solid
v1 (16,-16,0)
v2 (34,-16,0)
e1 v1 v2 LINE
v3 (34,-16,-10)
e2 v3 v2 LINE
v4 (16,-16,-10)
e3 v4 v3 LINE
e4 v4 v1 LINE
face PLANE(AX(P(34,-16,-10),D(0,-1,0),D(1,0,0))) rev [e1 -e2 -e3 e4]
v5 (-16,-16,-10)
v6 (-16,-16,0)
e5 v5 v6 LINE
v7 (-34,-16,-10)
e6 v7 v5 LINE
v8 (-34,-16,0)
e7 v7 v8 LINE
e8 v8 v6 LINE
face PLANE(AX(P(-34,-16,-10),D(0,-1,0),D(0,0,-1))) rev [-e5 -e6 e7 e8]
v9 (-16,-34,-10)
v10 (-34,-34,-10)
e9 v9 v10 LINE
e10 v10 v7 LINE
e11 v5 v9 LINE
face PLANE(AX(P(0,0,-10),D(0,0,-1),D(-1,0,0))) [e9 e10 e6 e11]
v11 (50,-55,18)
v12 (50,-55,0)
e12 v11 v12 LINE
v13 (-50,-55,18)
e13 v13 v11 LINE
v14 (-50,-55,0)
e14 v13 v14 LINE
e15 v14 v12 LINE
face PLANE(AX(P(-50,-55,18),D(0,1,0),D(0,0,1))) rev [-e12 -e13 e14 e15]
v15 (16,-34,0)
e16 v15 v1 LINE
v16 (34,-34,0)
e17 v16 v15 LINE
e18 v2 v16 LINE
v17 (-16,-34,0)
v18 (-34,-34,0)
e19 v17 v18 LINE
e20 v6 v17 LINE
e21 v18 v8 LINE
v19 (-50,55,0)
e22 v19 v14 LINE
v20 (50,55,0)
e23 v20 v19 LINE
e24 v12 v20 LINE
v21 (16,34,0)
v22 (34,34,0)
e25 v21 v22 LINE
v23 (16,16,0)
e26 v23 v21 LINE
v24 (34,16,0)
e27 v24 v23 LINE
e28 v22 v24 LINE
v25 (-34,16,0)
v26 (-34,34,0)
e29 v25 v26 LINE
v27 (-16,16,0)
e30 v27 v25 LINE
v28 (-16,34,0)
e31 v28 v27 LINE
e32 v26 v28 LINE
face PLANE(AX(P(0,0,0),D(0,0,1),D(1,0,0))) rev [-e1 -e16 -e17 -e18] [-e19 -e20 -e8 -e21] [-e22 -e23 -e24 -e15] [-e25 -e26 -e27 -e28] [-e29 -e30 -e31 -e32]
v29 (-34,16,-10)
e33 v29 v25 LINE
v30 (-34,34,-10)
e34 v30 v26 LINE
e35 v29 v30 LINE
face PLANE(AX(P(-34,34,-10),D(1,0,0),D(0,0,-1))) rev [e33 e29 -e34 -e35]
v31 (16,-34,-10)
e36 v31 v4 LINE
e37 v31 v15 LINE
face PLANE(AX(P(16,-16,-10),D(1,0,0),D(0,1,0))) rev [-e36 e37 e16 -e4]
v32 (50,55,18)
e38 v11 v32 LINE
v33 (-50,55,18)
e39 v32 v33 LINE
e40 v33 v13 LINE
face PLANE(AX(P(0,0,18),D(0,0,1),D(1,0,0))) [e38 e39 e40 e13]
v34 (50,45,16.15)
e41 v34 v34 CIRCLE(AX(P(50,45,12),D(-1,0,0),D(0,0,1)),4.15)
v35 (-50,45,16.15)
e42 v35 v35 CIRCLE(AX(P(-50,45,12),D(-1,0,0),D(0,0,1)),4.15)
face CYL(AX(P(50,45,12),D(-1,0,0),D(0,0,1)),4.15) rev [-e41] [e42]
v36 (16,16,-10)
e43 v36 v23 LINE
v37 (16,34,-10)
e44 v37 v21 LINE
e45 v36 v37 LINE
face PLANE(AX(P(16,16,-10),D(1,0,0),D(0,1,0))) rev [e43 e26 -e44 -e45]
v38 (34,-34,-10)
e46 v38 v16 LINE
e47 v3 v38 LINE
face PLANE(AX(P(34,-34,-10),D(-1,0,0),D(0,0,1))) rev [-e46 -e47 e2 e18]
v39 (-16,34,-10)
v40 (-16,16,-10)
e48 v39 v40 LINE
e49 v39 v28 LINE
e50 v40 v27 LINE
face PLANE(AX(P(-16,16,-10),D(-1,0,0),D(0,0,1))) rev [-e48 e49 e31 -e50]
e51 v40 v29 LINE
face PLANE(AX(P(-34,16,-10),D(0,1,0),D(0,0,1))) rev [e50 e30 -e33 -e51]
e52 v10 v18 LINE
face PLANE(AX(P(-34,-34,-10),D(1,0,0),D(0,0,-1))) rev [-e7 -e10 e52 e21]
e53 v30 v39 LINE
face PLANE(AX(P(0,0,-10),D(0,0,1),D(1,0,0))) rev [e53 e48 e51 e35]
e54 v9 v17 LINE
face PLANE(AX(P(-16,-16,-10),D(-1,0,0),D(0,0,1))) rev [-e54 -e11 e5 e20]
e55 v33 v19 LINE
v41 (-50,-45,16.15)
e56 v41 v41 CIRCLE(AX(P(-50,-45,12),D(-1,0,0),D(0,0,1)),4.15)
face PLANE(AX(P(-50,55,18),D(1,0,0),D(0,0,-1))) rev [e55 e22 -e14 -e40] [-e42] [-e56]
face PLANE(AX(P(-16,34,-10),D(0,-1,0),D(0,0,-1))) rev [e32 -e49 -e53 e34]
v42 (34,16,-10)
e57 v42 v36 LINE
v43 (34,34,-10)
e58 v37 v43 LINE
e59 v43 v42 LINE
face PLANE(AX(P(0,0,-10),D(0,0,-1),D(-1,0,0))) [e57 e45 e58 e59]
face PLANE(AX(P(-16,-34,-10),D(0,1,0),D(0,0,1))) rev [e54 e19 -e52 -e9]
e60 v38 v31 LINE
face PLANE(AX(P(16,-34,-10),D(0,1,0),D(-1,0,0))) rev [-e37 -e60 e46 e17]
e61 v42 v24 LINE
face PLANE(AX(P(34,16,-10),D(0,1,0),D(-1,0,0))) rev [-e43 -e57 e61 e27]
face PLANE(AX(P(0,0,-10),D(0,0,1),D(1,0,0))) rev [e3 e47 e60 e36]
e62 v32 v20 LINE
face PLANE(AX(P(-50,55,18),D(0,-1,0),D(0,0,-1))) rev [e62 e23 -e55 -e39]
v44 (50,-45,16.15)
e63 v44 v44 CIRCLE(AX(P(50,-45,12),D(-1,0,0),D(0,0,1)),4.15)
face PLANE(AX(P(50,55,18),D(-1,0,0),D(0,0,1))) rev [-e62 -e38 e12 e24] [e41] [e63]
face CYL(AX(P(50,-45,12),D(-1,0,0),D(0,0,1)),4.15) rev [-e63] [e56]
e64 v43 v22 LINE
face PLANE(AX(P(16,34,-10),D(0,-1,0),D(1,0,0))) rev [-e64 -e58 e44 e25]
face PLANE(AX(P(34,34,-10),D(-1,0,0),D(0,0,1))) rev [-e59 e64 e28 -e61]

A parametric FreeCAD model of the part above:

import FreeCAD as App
import Part
import Sketcher
from FreeCAD import Vector

doc = App.newDocument("Part")
params = doc.addObject("Spreadsheet::Sheet", "Params")
for row, (alias, value) in enumerate([
    ("sketch1_width", "100 mm"),
    ("sketch1_height", "110 mm"),
    ("pad1_length", "18 mm"),
    ("sketch2_width", "18 mm"),
    ("pad2_length", "10 mm"),
    ("sketch3_diameter", "8.3 mm"),
], start=1):
    params.set(f"A{row}", alias)
    params.set(f"B{row}", "=" + value)
    params.setAlias(f"B{row}", alias)

body = doc.addObject("PartDesign::Body", "Body")

# Sketch on XY plane
sketch1 = body.newObject("Sketcher::SketchObject", "Sketch")
sketch1.AttachmentSupport = (doc.getObject("XY_Plane"), [""])
sketch1.MapMode = "FlatFace"
sketch1.addGeometry(Part.LineSegment(Vector(-50, 55, 0), Vector(-50, -55, 0)), False)
sketch1.addGeometry(Part.LineSegment(Vector(-50, -55, 0), Vector(50, -55, 0)), False)
sketch1.addGeometry(Part.LineSegment(Vector(50, -55, 0), Vector(50, 55, 0)), False)
sketch1.addGeometry(Part.LineSegment(Vector(50, 55, 0), Vector(-50, 55, 0)), False)
sketch1.addConstraint(Sketcher.Constraint("Coincident", 0, 2, 1, 1))
sketch1.addConstraint(Sketcher.Constraint("Coincident", 1, 2, 2, 1))
sketch1.addConstraint(Sketcher.Constraint("Coincident", 2, 2, 3, 1))
sketch1.addConstraint(Sketcher.Constraint("Coincident", 3, 2, 0, 1))
sketch1.addConstraint(Sketcher.Constraint("Vertical", 0))
sketch1.addConstraint(Sketcher.Constraint("Horizontal", 1))
sketch1.addConstraint(Sketcher.Constraint("Vertical", 2))
sketch1.addConstraint(Sketcher.Constraint("Horizontal", 3))
sketch1.addConstraint(Sketcher.Constraint("Symmetric", 0, 2, 2, 2, -1, 1))
sketch1.addConstraint(Sketcher.Constraint("DistanceX", 1, 1, 1, 2, 100.0))
sketch1.addConstraint(Sketcher.Constraint("DistanceY", 0, 2, 0, 1, 110.0))
sketch1.setExpression("Constraints[9]", "Params.sketch1_width")
sketch1.setExpression("Constraints[10]", "Params.sketch1_height")
pad1 = body.newObject("PartDesign::Pad", "Pad")
pad1.Profile = sketch1
pad1.setExpression("Length", "Params.pad1_length")

# Sketch on XY plane
sketch2 = body.newObject("Sketcher::SketchObject", "Sketch001")
sketch2.AttachmentSupport = (doc.getObject("XY_Plane"), [""])
sketch2.MapMode = "FlatFace"
sketch2.addGeometry(Part.LineSegment(Vector(34, -16, 0), Vector(34, -34, 0)), False)
sketch2.addGeometry(Part.LineSegment(Vector(34, -34, 0), Vector(16, -34, 0)), False)
sketch2.addGeometry(Part.LineSegment(Vector(16, -34, 0), Vector(16, -16, 0)), False)
sketch2.addGeometry(Part.LineSegment(Vector(16, -16, 0), Vector(34, -16, 0)), False)
sketch2.addGeometry(Part.LineSegment(Vector(-16, -16, 0), Vector(-16, -34, 0)), False)
sketch2.addGeometry(Part.LineSegment(Vector(-16, -34, 0), Vector(-34, -34, 0)), False)
sketch2.addGeometry(Part.LineSegment(Vector(-34, -34, 0), Vector(-34, -16, 0)), False)
sketch2.addGeometry(Part.LineSegment(Vector(-34, -16, 0), Vector(-16, -16, 0)), False)
sketch2.addGeometry(Part.LineSegment(Vector(34, 34, 0), Vector(34, 16, 0)), False)
sketch2.addGeometry(Part.LineSegment(Vector(34, 16, 0), Vector(16, 16, 0)), False)
sketch2.addGeometry(Part.LineSegment(Vector(16, 16, 0), Vector(16, 34, 0)), False)
sketch2.addGeometry(Part.LineSegment(Vector(16, 34, 0), Vector(34, 34, 0)), False)
sketch2.addGeometry(Part.LineSegment(Vector(-16, 34, 0), Vector(-16, 16, 0)), False)
sketch2.addGeometry(Part.LineSegment(Vector(-16, 16, 0), Vector(-34, 16, 0)), False)
sketch2.addGeometry(Part.LineSegment(Vector(-34, 16, 0), Vector(-34, 34, 0)), False)
sketch2.addGeometry(Part.LineSegment(Vector(-34, 34, 0), Vector(-16, 34, 0)), False)
sketch2.addConstraint(Sketcher.Constraint("Coincident", 0, 2, 1, 1))
sketch2.addConstraint(Sketcher.Constraint("Coincident", 1, 2, 2, 1))
sketch2.addConstraint(Sketcher.Constraint("Coincident", 2, 2, 3, 1))
sketch2.addConstraint(Sketcher.Constraint("Coincident", 3, 2, 0, 1))
sketch2.addConstraint(Sketcher.Constraint("Coincident", 4, 2, 5, 1))
sketch2.addConstraint(Sketcher.Constraint("Coincident", 5, 2, 6, 1))
sketch2.addConstraint(Sketcher.Constraint("Coincident", 6, 2, 7, 1))
sketch2.addConstraint(Sketcher.Constraint("Coincident", 7, 2, 4, 1))
sketch2.addConstraint(Sketcher.Constraint("Coincident", 8, 2, 9, 1))
sketch2.addConstraint(Sketcher.Constraint("Coincident", 9, 2, 10, 1))
sketch2.addConstraint(Sketcher.Constraint("Coincident", 10, 2, 11, 1))
sketch2.addConstraint(Sketcher.Constraint("Coincident", 11, 2, 8, 1))
sketch2.addConstraint(Sketcher.Constraint("Coincident", 12, 2, 13, 1))
sketch2.addConstraint(Sketcher.Constraint("Coincident", 13, 2, 14, 1))
sketch2.addConstraint(Sketcher.Constraint("Coincident", 14, 2, 15, 1))
sketch2.addConstraint(Sketcher.Constraint("Coincident", 15, 2, 12, 1))
sketch2.addConstraint(Sketcher.Constraint("Vertical", 0))
sketch2.addConstraint(Sketcher.Constraint("Horizontal", 1))
sketch2.addConstraint(Sketcher.Constraint("Vertical", 2))
sketch2.addConstraint(Sketcher.Constraint("Horizontal", 3))
sketch2.addConstraint(Sketcher.Constraint("Vertical", 4))
sketch2.addConstraint(Sketcher.Constraint("Horizontal", 5))
sketch2.addConstraint(Sketcher.Constraint("Vertical", 6))
sketch2.addConstraint(Sketcher.Constraint("Horizontal", 7))
sketch2.addConstraint(Sketcher.Constraint("Vertical", 8))
sketch2.addConstraint(Sketcher.Constraint("Horizontal", 9))
sketch2.addConstraint(Sketcher.Constraint("Vertical", 10))
sketch2.addConstraint(Sketcher.Constraint("Horizontal", 11))
sketch2.addConstraint(Sketcher.Constraint("Vertical", 12))
sketch2.addConstraint(Sketcher.Constraint("Horizontal", 13))
sketch2.addConstraint(Sketcher.Constraint("Vertical", 14))
sketch2.addConstraint(Sketcher.Constraint("Horizontal", 15))
sketch2.addConstraint(Sketcher.Constraint("Symmetric", 6, 2, 8, 2, -1, 1))
sketch2.addConstraint(Sketcher.Constraint("Symmetric", 4, 2, 10, 2, -1, 1))
sketch2.addConstraint(Sketcher.Constraint("Symmetric", 2, 2, 12, 2, -1, 1))
sketch2.addConstraint(Sketcher.Constraint("Symmetric", 0, 2, 14, 2, -1, 1))
sketch2.addConstraint(Sketcher.Constraint("Symmetric", 1, 2, 4, 2, -2))
sketch2.addConstraint(Sketcher.Constraint("Symmetric", 3, 2, 6, 2, -2))
sketch2.addConstraint(Sketcher.Constraint("Equal", 15, 0))
sketch2.addConstraint(Sketcher.Constraint("DistanceX", 1, 2, 1, 1, 18.0))
sketch2.addConstraint(Sketcher.Constraint("DistanceX", -1, 1, 0, 2, 34.0))
sketch2.addConstraint(Sketcher.Constraint("DistanceY", 0, 2, -1, 1, 34.0))
sketch2.setExpression("Constraints[39]", "Params.sketch2_width")
pad2 = body.newObject("PartDesign::Pad", "Pad001")
pad2.Profile = sketch2
pad2.setExpression("Length", "Params.pad2_length")
pad2.Reversed = True

# Sketch on YZ plane
sketch3 = body.newObject("Sketcher::SketchObject", "Sketch002")
sketch3.AttachmentSupport = (doc.getObject("YZ_Plane"), [""])
sketch3.MapMode = "FlatFace"
sketch3.AttachmentOffset = App.Placement(Vector(0, 0, -50), App.Rotation())
sketch3.addGeometry(Part.Circle(Vector(45, 12, 0), Vector(0, 0, 1), 4.2), False)
sketch3.addGeometry(Part.Circle(Vector(-45, 12, 0), Vector(0, 0, 1), 4.2), False)
sketch3.addConstraint(Sketcher.Constraint("Equal", 0, 1))
sketch3.addConstraint(Sketcher.Constraint("Symmetric", 0, 3, 1, 3, -2))
sketch3.addConstraint(Sketcher.Constraint("Diameter", 0, 8.3))
sketch3.addConstraint(Sketcher.Constraint("DistanceX", -1, 1, 0, 3, 45.0))
sketch3.addConstraint(Sketcher.Constraint("DistanceY", -1, 1, 0, 3, 12.0))
sketch3.setExpression("Constraints[2]", "Params.sketch3_diameter")
pocket1 = body.newObject("PartDesign::Pocket", "Pocket")
pocket1.Profile = sketch3
pocket1.Type = "ThroughAll"
pocket1.Reversed = True

doc.recompute()
